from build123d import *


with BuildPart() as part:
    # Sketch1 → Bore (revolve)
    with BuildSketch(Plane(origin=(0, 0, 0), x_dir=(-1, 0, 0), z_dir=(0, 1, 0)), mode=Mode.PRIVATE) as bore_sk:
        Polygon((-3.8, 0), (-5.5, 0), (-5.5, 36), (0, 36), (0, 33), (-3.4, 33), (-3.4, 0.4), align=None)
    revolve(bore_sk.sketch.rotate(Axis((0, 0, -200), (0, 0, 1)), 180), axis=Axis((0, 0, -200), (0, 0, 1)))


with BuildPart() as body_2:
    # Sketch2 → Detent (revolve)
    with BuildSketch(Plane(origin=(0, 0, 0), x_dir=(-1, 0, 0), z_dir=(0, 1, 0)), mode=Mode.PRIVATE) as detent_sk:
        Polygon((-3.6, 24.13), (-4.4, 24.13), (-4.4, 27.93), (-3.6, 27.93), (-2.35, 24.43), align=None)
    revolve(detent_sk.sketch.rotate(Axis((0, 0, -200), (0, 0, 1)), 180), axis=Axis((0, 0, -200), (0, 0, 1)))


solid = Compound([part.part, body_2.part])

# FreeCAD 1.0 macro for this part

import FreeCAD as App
import Part
import Sketcher
Q = App.Units.Quantity

doc = App.newDocument("Part")
body = doc.addObject("PartDesign::Body", "Body")

# Sketch on XZ plane
sketch1 = body.newObject("Sketcher::SketchObject", "Sketch")
sketch1.AttachmentSupport = (doc.getObject("XZ_Plane"), [""])
sketch1.MapMode = "FlatFace"
sketch1.addGeometry([
    Part.LineSegment(App.Vector(5.5, 0, 0), App.Vector(3.8, 0, 0)),  # 0
    Part.LineSegment(App.Vector(3.8, 0, 0), App.Vector(3.4, 0.4, 0)),  # 1
    Part.LineSegment(App.Vector(3.4, 0.4, 0), App.Vector(3.4, 33, 0)),  # 2
    Part.LineSegment(App.Vector(3.4, 33, 0), App.Vector(0, 33, 0)),  # 3
    Part.LineSegment(App.Vector(0, 33, 0), App.Vector(0, 36, 0)),  # 4
    Part.LineSegment(App.Vector(0, 36, 0), App.Vector(5.5, 36, 0)),  # 5
    Part.LineSegment(App.Vector(5.5, 36, 0), App.Vector(5.5, 0, 0)),  # 6
], False)
sketch1.addConstraint([
    Sketcher.Constraint("Coincident", 0, 2, 1, 1),
    Sketcher.Constraint("Coincident", 1, 2, 2, 1),
    Sketcher.Constraint("Coincident", 2, 2, 3, 1),
    Sketcher.Constraint("Coincident", 3, 2, 4, 1),
    Sketcher.Constraint("Coincident", 4, 2, 5, 1),
    Sketcher.Constraint("Coincident", 5, 2, 6, 1),
    Sketcher.Constraint("Coincident", 6, 2, 0, 1),
    Sketcher.Constraint("Horizontal", 0),
    Sketcher.Constraint("Vertical", 2),
    Sketcher.Constraint("Horizontal", 3),
    Sketcher.Constraint("Vertical", 4),
    Sketcher.Constraint("Horizontal", 5),
    Sketcher.Constraint("Vertical", 6),
    Sketcher.Constraint("PointOnObject", 0, 2, -1),
    Sketcher.Constraint("PointOnObject", 3, 2, -2),
    Sketcher.Constraint("DistanceY", 4, 1, 4, 2, Q("3 mm")),
    Sketcher.Constraint("DistanceY", 6, 2, 6, 1, Q("36 mm")),
    Sketcher.Constraint("Angle", 1, Q("135 deg")),
    Sketcher.Constraint("DistanceX", 0, 2, 0, 1, Q("1.7 mm")),
    Sketcher.Constraint("DistanceX", 3, 2, 3, 1, Q("3.4 mm")),
    Sketcher.Constraint("DistanceX", 5, 1, 5, 2, Q("5.5 mm")),
])
revolution = body.newObject("PartDesign::Revolution", "Revolution")
revolution.Profile = sketch1
revolution.ReferenceAxis = (sketch1, ["V_Axis"])
revolution.Angle = 360
body2 = doc.addObject("PartDesign::Body", "Body001")

# Sketch on XZ plane
sketch2 = body2.newObject("Sketcher::SketchObject", "Sketch001")
sketch2.AttachmentSupport = (doc.getObject("XZ_Plane001"), [""])
sketch2.MapMode = "FlatFace"
sketch2.addGeometry([
    Part.LineSegment(App.Vector(4.4, 24.1, 0), App.Vector(3.6, 24.1, 0)),  # 0
    Part.LineSegment(App.Vector(3.6, 24.1, 0), App.Vector(2.4, 24.4, 0)),  # 1
    Part.LineSegment(App.Vector(2.4, 24.4, 0), App.Vector(3.6, 27.9, 0)),  # 2
    Part.LineSegment(App.Vector(3.6, 27.9, 0), App.Vector(4.4, 27.9, 0)),  # 3
    Part.LineSegment(App.Vector(4.4, 27.9, 0), App.Vector(4.4, 24.1, 0)),  # 4
], False)
sketch2.addConstraint([
    Sketcher.Constraint("Coincident", 0, 2, 1, 1),
    Sketcher.Constraint("Coincident", 1, 2, 2, 1),
    Sketcher.Constraint("Coincident", 2, 2, 3, 1),
    Sketcher.Constraint("Coincident", 3, 2, 4, 1),
    Sketcher.Constraint("Coincident", 4, 2, 0, 1),
    Sketcher.Constraint("Horizontal", 0),
    Sketcher.Constraint("Horizontal", 3),
    Sketcher.Constraint("Vertical", 4),
    Sketcher.Constraint("Vertical", 0, 2, 2, 2),
    Sketcher.Constraint("DistanceX", 0, 2, 0, 1, Q("0.8 mm")),
    Sketcher.Constraint("DistanceY", 4, 2, 4, 1, Q("3.8 mm")),
    Sketcher.Constraint("DistanceX", -1, 1, 0, 2, Q("3.6 mm")),
    Sketcher.Constraint("DistanceY", 0, 2, 1, 2, Q("0.3 mm")),
    Sketcher.Constraint("DistanceY", -1, 1, 0, 2, Q("24.13 mm")),
    Sketcher.Constraint("DistanceX", -1, 1, 1, 2, Q("2.35 mm")),
])
revolution2 = body2.newObject("PartDesign::Revolution", "Revolution001")
revolution2.Profile = sketch2
revolution2.ReferenceAxis = (sketch2, ["V_Axis"])
revolution2.Angle = 360

doc.recompute()
